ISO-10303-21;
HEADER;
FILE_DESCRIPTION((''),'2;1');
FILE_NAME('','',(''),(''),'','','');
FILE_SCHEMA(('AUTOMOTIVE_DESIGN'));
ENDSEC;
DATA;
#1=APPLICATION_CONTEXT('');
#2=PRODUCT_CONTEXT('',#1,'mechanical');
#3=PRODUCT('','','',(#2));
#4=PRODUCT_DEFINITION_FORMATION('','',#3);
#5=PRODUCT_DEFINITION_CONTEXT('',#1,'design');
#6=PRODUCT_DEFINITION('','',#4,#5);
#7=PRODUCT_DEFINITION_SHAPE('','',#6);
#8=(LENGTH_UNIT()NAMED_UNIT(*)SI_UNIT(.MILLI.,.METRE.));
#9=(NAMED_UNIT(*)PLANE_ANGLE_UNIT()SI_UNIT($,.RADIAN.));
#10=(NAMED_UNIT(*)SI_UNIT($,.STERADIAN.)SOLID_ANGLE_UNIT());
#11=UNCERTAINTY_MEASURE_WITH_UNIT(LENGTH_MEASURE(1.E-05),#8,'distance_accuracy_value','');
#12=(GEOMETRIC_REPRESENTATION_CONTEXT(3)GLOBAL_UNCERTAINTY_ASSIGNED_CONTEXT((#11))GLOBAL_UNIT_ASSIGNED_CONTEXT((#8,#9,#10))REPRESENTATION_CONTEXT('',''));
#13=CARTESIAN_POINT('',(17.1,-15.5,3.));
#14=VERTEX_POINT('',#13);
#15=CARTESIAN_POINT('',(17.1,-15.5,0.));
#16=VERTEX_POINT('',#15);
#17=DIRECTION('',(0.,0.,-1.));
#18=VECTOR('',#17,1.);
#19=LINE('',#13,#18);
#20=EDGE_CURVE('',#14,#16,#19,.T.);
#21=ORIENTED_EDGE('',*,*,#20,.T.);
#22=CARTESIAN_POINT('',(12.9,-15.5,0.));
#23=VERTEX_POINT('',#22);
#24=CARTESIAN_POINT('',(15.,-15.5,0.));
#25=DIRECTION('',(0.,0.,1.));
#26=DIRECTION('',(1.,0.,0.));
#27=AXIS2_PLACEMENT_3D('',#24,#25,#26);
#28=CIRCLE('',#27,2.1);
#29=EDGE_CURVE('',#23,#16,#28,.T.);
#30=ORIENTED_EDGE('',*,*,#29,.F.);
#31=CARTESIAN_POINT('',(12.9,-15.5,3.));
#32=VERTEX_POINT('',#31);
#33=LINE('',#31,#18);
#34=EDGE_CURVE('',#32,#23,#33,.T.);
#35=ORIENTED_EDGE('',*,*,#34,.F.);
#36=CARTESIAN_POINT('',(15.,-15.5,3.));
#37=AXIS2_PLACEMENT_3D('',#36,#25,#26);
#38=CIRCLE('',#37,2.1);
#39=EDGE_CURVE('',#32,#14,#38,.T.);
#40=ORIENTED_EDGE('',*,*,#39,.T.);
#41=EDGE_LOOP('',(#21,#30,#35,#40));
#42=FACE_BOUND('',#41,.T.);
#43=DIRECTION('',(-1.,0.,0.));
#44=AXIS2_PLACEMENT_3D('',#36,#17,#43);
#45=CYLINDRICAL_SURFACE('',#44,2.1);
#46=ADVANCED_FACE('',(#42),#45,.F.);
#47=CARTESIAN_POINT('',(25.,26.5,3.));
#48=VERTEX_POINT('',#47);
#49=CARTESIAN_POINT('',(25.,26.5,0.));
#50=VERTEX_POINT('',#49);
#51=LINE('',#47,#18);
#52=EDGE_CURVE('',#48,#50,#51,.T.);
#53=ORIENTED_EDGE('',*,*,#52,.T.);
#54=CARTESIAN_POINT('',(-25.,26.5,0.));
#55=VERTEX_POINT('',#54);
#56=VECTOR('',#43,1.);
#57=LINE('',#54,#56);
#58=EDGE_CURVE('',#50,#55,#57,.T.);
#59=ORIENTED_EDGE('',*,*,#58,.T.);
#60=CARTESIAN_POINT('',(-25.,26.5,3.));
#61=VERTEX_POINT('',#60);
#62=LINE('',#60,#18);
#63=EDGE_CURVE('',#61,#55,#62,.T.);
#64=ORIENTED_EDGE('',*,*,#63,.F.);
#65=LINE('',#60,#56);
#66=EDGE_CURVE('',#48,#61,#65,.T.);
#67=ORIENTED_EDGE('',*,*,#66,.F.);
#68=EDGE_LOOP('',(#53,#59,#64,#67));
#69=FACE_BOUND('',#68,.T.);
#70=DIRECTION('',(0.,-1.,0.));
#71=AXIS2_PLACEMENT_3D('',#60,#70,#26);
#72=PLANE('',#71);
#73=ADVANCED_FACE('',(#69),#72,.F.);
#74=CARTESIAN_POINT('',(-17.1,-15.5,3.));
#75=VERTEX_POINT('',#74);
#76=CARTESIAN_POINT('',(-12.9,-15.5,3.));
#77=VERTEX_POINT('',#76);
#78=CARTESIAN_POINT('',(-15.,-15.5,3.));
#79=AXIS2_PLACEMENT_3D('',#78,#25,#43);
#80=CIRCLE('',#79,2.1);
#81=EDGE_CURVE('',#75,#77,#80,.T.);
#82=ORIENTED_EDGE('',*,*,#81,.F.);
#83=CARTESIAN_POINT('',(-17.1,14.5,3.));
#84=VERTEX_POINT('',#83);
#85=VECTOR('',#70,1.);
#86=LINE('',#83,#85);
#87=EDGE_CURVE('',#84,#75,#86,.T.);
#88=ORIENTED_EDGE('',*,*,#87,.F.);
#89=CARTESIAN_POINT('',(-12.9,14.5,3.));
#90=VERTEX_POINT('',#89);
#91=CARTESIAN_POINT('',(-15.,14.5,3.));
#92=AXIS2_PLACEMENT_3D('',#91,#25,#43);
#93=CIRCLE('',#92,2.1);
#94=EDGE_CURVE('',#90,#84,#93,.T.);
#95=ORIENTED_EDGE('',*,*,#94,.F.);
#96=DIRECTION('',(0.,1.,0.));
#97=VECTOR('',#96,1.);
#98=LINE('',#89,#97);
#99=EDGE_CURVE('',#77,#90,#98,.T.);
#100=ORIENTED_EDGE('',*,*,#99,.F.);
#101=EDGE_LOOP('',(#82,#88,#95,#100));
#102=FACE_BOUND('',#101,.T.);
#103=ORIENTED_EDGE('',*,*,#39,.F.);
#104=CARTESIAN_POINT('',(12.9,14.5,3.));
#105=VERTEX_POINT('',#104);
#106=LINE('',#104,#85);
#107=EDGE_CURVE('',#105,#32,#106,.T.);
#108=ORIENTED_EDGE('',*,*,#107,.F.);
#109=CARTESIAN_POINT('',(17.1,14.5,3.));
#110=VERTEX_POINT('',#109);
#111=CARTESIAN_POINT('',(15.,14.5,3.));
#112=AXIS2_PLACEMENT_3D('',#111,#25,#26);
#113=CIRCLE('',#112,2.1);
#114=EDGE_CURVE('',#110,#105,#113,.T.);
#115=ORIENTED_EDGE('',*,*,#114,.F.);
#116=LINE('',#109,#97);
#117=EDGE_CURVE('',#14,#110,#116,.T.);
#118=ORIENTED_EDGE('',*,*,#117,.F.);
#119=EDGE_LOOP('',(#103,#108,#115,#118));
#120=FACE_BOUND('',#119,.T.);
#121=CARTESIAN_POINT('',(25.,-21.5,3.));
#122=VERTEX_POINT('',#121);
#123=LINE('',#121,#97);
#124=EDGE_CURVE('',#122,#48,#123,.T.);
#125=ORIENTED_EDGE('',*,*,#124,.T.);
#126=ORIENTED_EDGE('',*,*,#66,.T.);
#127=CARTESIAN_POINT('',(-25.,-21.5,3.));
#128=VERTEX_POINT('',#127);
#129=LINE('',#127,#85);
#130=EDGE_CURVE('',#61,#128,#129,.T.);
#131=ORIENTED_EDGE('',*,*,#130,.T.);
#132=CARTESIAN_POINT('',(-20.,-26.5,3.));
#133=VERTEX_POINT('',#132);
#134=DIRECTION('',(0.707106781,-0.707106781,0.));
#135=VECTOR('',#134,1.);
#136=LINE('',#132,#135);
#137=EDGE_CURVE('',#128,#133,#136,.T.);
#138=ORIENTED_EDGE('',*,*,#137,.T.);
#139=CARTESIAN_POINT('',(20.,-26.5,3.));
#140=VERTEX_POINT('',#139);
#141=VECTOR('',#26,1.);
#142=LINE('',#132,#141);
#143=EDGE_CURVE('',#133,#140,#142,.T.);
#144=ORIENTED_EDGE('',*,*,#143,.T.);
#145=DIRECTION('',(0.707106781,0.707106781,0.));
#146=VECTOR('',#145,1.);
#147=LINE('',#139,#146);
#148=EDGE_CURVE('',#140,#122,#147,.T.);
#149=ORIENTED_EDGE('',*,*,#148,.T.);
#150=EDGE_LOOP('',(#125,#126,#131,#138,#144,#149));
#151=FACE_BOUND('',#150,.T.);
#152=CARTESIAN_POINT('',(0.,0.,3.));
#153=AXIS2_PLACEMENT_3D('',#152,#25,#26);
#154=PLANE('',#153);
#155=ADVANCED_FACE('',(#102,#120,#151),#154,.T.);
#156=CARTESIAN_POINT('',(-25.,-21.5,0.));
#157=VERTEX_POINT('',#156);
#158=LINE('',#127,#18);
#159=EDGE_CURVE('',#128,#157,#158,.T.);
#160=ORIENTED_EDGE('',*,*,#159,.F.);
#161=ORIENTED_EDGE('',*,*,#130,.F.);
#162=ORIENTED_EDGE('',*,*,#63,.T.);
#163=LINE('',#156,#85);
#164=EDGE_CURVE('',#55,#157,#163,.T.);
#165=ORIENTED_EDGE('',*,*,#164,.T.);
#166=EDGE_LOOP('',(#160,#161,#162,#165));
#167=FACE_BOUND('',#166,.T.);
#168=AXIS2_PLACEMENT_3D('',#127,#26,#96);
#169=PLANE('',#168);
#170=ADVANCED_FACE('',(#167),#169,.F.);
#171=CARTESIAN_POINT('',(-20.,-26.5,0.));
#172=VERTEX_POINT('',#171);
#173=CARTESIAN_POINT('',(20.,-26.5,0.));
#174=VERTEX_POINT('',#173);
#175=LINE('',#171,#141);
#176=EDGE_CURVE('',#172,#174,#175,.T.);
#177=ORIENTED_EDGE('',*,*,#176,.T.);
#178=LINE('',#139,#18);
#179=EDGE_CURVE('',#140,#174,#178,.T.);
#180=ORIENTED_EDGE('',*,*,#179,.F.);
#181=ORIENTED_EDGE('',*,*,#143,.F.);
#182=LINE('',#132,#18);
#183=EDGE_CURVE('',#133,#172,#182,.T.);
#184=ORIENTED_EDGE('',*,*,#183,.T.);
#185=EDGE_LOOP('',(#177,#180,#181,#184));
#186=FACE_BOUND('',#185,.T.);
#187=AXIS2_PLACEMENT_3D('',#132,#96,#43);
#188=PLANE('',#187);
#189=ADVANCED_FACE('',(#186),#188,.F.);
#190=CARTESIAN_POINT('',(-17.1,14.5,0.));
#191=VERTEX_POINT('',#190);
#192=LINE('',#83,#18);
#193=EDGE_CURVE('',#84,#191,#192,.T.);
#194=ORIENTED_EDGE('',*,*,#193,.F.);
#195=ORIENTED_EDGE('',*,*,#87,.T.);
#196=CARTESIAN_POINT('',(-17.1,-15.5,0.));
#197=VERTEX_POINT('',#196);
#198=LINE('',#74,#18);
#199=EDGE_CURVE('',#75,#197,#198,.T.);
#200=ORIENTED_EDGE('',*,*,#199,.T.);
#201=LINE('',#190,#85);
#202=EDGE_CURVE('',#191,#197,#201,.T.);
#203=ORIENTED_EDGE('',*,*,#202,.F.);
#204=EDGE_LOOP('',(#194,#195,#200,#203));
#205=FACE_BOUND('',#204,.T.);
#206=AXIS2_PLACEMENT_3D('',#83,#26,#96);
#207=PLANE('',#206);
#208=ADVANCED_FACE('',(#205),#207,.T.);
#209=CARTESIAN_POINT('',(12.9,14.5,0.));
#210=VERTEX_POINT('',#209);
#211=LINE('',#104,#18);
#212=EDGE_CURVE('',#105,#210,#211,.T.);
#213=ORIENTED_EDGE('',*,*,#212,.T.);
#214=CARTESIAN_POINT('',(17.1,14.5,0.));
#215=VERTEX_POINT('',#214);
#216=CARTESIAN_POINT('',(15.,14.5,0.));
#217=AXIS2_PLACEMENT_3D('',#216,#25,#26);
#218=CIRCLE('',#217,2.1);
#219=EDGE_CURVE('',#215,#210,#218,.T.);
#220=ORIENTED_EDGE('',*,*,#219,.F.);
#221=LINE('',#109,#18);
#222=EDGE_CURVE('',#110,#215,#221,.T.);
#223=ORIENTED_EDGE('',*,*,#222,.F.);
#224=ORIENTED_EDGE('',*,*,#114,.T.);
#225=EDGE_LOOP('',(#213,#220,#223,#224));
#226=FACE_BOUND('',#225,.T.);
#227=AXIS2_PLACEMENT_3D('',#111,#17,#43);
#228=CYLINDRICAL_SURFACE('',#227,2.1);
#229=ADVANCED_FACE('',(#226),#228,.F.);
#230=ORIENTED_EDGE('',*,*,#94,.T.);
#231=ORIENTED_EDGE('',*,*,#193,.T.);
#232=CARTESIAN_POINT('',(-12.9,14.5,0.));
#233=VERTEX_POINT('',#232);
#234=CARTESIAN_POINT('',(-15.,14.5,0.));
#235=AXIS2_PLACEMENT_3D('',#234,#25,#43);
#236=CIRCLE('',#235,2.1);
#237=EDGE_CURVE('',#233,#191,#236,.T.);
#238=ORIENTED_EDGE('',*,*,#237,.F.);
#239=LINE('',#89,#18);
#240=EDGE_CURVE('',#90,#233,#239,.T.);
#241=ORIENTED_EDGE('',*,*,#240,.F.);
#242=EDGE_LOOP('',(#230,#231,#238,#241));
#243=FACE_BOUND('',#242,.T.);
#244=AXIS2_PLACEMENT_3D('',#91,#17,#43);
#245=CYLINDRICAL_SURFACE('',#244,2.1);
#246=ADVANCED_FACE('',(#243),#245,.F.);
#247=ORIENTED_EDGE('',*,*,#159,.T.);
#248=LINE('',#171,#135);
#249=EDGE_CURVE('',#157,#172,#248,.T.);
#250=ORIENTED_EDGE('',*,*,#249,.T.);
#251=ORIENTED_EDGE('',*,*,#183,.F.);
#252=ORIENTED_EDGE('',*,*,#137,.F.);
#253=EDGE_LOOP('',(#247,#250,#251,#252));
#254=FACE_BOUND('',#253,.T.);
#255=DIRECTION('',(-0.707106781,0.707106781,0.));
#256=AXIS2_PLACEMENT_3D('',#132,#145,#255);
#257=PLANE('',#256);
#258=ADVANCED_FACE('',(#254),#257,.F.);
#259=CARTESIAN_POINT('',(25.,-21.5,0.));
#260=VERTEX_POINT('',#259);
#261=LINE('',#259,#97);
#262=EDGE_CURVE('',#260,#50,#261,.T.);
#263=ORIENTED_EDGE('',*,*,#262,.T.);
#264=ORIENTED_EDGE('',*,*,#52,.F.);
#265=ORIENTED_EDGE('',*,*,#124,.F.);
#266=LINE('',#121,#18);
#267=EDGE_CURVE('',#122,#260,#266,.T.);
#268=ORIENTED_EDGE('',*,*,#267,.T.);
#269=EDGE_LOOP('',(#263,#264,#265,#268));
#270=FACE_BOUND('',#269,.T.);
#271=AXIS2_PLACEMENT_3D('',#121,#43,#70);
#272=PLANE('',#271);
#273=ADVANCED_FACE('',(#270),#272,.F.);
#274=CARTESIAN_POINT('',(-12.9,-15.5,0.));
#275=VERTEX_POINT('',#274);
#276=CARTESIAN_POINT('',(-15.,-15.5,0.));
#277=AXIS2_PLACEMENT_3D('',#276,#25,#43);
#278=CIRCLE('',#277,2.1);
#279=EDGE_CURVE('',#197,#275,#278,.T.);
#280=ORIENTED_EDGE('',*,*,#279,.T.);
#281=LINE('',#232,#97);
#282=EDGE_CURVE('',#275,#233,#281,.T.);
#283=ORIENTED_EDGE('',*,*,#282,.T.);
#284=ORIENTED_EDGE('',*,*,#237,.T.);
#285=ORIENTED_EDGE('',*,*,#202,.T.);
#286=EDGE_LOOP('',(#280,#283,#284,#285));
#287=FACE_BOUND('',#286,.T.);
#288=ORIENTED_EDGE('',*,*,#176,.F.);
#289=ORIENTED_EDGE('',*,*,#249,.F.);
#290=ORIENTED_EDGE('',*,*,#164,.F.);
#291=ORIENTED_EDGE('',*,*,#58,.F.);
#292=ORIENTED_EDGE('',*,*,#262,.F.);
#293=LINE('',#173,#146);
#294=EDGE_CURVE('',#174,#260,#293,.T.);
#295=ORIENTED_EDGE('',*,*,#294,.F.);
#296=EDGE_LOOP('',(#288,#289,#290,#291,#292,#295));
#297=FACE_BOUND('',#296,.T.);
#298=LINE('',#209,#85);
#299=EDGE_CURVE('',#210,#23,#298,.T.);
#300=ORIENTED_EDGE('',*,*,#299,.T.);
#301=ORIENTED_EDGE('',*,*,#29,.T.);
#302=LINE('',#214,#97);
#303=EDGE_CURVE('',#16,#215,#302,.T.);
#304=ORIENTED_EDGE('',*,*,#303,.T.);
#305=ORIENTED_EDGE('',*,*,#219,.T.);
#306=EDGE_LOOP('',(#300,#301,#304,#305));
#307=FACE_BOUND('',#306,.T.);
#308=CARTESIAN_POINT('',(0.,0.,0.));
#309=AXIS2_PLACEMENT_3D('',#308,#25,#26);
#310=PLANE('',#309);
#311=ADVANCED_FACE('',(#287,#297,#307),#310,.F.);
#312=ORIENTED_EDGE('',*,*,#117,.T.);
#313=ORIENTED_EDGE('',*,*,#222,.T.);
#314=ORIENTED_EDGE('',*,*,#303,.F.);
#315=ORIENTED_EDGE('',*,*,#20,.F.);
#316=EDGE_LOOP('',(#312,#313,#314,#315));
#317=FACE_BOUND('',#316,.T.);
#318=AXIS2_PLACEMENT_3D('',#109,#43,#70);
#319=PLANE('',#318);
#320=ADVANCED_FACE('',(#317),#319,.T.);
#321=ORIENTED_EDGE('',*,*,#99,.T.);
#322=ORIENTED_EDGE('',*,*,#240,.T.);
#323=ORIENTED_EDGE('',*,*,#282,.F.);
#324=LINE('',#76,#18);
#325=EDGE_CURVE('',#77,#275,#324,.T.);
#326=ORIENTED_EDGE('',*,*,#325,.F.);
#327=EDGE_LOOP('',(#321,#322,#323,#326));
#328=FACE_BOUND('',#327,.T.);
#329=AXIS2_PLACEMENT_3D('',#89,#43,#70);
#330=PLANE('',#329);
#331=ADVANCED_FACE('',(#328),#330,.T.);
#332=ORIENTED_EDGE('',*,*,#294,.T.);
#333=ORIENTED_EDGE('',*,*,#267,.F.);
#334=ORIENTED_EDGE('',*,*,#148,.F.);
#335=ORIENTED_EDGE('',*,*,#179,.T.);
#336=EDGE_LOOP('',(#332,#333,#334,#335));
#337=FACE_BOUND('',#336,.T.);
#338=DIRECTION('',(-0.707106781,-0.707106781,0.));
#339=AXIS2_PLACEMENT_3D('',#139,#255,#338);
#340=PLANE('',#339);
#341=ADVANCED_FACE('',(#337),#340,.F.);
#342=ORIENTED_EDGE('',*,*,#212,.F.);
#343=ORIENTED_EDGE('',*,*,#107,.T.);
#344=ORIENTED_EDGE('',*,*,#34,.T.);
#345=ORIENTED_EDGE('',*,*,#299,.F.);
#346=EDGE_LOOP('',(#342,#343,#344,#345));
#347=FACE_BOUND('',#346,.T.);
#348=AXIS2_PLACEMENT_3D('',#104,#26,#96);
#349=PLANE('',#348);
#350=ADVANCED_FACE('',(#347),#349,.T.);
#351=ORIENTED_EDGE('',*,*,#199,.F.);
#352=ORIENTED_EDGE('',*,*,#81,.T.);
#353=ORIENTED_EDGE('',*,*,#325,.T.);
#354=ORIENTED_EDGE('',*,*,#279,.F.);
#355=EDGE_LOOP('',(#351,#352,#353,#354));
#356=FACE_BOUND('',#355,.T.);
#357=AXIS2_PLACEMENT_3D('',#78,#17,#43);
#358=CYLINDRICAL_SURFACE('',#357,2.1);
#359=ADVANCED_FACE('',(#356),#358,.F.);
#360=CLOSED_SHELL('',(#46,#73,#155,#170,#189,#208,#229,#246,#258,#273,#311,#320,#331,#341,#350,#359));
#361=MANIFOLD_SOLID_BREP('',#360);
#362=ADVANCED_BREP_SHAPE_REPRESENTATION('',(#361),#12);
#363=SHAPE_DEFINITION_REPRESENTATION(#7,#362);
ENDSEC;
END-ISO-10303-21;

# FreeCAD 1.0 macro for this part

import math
import FreeCAD as App
import Part
import Sketcher

V = App.Vector


def add_polygon(sketch, points):
    """Adds a closed chain of lines whose ends are joined by coincident constraints."""
    first, n = sketch.GeometryCount, len(points)
    for a, b in zip(points, points[1:] + points[:1]):
        sketch.addGeometry(Part.LineSegment(App.Vector(*a, 0), App.Vector(*b, 0)), False)
    for i in range(n):
        sketch.addConstraint(Sketcher.Constraint("Coincident", first + i, 2, first + (i + 1) % n, 1))

doc = App.newDocument("Part")
params = doc.addObject("Spreadsheet::Sheet", "Params")
for row, (alias, value) in enumerate([
    ("sketch1_radius", "2.1 mm"),
    ("sketch1_width", "40 mm"),
    ("sketch1_width2", "50 mm"),
    ("sketch1_height", "48 mm"),
    ("sketch1_height2", "30 mm"),
    ("pad1_length", "3 mm"),
], start=1):
    params.set(f"A{row}", alias)
    params.set(f"B{row}", "=" + value)
    params.setAlias(f"B{row}", alias)

body = doc.addObject("PartDesign::Body", "Body")

sketch1 = body.newObject("Sketcher::SketchObject", "Sketch")
sketch1.AttachmentSupport = (doc.getObject("XY_Plane"), [""])
sketch1.MapMode = "FlatFace"
add_polygon(sketch1, [(-25, 26.5), (-25, -21.5), (-20, -26.5), (20, -26.5), (25, -21.5), (25, 26.5)])
sketch1.addGeometry(Part.LineSegment(V(17.1, 14.5, 0), V(17.1, -15.5, 0)), False)
sketch1.addGeometry(Part.ArcOfCircle(Part.Circle(V(15, -15.5, 0), V(0, 0, 1), 2.1), math.radians(180), math.radians(360)), False)
sketch1.addGeometry(Part.LineSegment(V(12.9, -15.5, 0), V(12.9, 14.5, 0)), False)
sketch1.addGeometry(Part.ArcOfCircle(Part.Circle(V(15, 14.5, 0), V(0, 0, 1), 2.1), math.radians(0), math.radians(180)), False)
sketch1.addGeometry(Part.ArcOfCircle(Part.Circle(V(-15, 14.5, 0), V(0, 0, 1), 2.1), math.radians(0), math.radians(180)), False)
sketch1.addGeometry(Part.LineSegment(V(-12.9, 14.5, 0), V(-12.9, -15.5, 0)), False)
sketch1.addGeometry(Part.ArcOfCircle(Part.Circle(V(-15, -15.5, 0), V(0, 0, 1), 2.1), math.radians(180), math.radians(360)), False)
sketch1.addGeometry(Part.LineSegment(V(-17.1, -15.5, 0), V(-17.1, 14.5, 0)), False)
sketch1.addConstraint([
    Sketcher.Constraint("Tangent", 6, 2, 7, 2),
    Sketcher.Constraint("Tangent", 7, 1, 8, 1),
    Sketcher.Constraint("Tangent", 8, 2, 9, 2),
    Sketcher.Constraint("Tangent", 9, 1, 6, 1),
    Sketcher.Constraint("Tangent", 10, 1, 11, 1),
    Sketcher.Constraint("Tangent", 11, 2, 12, 2),
    Sketcher.Constraint("Tangent", 12, 1, 13, 1),
    Sketcher.Constraint("Tangent", 13, 2, 10, 2),
    Sketcher.Constraint("Vertical", 0),
    Sketcher.Constraint("Horizontal", 2),
    Sketcher.Constraint("Vertical", 4),
    Sketcher.Constraint("Horizontal", 5),
    Sketcher.Constraint("Vertical", 6),
    Sketcher.Constraint("Vertical", 8),
    Sketcher.Constraint("Vertical", 11),
    Sketcher.Constraint("Vertical", 13),
    Sketcher.Constraint("Equal", 9, 10),
    Sketcher.Constraint("Symmetric", 9, 3, 10, 3, -2),
    Sketcher.Constraint("Symmetric", 0, 2, 3, 2, -2),
    Sketcher.Constraint("Perpendicular", 1, 3),
    Sketcher.Constraint("Horizontal", 7, 3, 12, 3),
    Sketcher.Constraint("Equal", 1, 3),
    Sketcher.Constraint("Radius", 7, 2.1),
    Sketcher.Constraint("DistanceX", 2, 1, 2, 2, 40.0),
    Sketcher.Constraint("DistanceX", 5, 2, 5, 1, 50.0),
    Sketcher.Constraint("DistanceY", 0, 2, 0, 1, 48.0),
    Sketcher.Constraint("DistanceY", 6, 2, 6, 1, 30.0),
    Sketcher.Constraint("DistanceX", -1, 1, 7, 3, 15.0),
    Sketcher.Constraint("DistanceY", 0, 2, 12, 3, 6.0),
    Sketcher.Constraint("DistanceY", 7, 3, -1, 1, 15.5),
])
sketch1.setExpression("Constraints[28]", "Params.sketch1_radius")
sketch1.setExpression("Constraints[29]", "Params.sketch1_width")
sketch1.setExpression("Constraints[30]", "Params.sketch1_width2")
sketch1.setExpression("Constraints[31]", "Params.sketch1_height")
sketch1.setExpression("Constraints[32]", "Params.sketch1_height2")
pad1 = body.newObject("PartDesign::Pad", "Pad")
pad1.Profile = sketch1
pad1.setExpression("Length", "Params.pad1_length")

doc.recompute()
